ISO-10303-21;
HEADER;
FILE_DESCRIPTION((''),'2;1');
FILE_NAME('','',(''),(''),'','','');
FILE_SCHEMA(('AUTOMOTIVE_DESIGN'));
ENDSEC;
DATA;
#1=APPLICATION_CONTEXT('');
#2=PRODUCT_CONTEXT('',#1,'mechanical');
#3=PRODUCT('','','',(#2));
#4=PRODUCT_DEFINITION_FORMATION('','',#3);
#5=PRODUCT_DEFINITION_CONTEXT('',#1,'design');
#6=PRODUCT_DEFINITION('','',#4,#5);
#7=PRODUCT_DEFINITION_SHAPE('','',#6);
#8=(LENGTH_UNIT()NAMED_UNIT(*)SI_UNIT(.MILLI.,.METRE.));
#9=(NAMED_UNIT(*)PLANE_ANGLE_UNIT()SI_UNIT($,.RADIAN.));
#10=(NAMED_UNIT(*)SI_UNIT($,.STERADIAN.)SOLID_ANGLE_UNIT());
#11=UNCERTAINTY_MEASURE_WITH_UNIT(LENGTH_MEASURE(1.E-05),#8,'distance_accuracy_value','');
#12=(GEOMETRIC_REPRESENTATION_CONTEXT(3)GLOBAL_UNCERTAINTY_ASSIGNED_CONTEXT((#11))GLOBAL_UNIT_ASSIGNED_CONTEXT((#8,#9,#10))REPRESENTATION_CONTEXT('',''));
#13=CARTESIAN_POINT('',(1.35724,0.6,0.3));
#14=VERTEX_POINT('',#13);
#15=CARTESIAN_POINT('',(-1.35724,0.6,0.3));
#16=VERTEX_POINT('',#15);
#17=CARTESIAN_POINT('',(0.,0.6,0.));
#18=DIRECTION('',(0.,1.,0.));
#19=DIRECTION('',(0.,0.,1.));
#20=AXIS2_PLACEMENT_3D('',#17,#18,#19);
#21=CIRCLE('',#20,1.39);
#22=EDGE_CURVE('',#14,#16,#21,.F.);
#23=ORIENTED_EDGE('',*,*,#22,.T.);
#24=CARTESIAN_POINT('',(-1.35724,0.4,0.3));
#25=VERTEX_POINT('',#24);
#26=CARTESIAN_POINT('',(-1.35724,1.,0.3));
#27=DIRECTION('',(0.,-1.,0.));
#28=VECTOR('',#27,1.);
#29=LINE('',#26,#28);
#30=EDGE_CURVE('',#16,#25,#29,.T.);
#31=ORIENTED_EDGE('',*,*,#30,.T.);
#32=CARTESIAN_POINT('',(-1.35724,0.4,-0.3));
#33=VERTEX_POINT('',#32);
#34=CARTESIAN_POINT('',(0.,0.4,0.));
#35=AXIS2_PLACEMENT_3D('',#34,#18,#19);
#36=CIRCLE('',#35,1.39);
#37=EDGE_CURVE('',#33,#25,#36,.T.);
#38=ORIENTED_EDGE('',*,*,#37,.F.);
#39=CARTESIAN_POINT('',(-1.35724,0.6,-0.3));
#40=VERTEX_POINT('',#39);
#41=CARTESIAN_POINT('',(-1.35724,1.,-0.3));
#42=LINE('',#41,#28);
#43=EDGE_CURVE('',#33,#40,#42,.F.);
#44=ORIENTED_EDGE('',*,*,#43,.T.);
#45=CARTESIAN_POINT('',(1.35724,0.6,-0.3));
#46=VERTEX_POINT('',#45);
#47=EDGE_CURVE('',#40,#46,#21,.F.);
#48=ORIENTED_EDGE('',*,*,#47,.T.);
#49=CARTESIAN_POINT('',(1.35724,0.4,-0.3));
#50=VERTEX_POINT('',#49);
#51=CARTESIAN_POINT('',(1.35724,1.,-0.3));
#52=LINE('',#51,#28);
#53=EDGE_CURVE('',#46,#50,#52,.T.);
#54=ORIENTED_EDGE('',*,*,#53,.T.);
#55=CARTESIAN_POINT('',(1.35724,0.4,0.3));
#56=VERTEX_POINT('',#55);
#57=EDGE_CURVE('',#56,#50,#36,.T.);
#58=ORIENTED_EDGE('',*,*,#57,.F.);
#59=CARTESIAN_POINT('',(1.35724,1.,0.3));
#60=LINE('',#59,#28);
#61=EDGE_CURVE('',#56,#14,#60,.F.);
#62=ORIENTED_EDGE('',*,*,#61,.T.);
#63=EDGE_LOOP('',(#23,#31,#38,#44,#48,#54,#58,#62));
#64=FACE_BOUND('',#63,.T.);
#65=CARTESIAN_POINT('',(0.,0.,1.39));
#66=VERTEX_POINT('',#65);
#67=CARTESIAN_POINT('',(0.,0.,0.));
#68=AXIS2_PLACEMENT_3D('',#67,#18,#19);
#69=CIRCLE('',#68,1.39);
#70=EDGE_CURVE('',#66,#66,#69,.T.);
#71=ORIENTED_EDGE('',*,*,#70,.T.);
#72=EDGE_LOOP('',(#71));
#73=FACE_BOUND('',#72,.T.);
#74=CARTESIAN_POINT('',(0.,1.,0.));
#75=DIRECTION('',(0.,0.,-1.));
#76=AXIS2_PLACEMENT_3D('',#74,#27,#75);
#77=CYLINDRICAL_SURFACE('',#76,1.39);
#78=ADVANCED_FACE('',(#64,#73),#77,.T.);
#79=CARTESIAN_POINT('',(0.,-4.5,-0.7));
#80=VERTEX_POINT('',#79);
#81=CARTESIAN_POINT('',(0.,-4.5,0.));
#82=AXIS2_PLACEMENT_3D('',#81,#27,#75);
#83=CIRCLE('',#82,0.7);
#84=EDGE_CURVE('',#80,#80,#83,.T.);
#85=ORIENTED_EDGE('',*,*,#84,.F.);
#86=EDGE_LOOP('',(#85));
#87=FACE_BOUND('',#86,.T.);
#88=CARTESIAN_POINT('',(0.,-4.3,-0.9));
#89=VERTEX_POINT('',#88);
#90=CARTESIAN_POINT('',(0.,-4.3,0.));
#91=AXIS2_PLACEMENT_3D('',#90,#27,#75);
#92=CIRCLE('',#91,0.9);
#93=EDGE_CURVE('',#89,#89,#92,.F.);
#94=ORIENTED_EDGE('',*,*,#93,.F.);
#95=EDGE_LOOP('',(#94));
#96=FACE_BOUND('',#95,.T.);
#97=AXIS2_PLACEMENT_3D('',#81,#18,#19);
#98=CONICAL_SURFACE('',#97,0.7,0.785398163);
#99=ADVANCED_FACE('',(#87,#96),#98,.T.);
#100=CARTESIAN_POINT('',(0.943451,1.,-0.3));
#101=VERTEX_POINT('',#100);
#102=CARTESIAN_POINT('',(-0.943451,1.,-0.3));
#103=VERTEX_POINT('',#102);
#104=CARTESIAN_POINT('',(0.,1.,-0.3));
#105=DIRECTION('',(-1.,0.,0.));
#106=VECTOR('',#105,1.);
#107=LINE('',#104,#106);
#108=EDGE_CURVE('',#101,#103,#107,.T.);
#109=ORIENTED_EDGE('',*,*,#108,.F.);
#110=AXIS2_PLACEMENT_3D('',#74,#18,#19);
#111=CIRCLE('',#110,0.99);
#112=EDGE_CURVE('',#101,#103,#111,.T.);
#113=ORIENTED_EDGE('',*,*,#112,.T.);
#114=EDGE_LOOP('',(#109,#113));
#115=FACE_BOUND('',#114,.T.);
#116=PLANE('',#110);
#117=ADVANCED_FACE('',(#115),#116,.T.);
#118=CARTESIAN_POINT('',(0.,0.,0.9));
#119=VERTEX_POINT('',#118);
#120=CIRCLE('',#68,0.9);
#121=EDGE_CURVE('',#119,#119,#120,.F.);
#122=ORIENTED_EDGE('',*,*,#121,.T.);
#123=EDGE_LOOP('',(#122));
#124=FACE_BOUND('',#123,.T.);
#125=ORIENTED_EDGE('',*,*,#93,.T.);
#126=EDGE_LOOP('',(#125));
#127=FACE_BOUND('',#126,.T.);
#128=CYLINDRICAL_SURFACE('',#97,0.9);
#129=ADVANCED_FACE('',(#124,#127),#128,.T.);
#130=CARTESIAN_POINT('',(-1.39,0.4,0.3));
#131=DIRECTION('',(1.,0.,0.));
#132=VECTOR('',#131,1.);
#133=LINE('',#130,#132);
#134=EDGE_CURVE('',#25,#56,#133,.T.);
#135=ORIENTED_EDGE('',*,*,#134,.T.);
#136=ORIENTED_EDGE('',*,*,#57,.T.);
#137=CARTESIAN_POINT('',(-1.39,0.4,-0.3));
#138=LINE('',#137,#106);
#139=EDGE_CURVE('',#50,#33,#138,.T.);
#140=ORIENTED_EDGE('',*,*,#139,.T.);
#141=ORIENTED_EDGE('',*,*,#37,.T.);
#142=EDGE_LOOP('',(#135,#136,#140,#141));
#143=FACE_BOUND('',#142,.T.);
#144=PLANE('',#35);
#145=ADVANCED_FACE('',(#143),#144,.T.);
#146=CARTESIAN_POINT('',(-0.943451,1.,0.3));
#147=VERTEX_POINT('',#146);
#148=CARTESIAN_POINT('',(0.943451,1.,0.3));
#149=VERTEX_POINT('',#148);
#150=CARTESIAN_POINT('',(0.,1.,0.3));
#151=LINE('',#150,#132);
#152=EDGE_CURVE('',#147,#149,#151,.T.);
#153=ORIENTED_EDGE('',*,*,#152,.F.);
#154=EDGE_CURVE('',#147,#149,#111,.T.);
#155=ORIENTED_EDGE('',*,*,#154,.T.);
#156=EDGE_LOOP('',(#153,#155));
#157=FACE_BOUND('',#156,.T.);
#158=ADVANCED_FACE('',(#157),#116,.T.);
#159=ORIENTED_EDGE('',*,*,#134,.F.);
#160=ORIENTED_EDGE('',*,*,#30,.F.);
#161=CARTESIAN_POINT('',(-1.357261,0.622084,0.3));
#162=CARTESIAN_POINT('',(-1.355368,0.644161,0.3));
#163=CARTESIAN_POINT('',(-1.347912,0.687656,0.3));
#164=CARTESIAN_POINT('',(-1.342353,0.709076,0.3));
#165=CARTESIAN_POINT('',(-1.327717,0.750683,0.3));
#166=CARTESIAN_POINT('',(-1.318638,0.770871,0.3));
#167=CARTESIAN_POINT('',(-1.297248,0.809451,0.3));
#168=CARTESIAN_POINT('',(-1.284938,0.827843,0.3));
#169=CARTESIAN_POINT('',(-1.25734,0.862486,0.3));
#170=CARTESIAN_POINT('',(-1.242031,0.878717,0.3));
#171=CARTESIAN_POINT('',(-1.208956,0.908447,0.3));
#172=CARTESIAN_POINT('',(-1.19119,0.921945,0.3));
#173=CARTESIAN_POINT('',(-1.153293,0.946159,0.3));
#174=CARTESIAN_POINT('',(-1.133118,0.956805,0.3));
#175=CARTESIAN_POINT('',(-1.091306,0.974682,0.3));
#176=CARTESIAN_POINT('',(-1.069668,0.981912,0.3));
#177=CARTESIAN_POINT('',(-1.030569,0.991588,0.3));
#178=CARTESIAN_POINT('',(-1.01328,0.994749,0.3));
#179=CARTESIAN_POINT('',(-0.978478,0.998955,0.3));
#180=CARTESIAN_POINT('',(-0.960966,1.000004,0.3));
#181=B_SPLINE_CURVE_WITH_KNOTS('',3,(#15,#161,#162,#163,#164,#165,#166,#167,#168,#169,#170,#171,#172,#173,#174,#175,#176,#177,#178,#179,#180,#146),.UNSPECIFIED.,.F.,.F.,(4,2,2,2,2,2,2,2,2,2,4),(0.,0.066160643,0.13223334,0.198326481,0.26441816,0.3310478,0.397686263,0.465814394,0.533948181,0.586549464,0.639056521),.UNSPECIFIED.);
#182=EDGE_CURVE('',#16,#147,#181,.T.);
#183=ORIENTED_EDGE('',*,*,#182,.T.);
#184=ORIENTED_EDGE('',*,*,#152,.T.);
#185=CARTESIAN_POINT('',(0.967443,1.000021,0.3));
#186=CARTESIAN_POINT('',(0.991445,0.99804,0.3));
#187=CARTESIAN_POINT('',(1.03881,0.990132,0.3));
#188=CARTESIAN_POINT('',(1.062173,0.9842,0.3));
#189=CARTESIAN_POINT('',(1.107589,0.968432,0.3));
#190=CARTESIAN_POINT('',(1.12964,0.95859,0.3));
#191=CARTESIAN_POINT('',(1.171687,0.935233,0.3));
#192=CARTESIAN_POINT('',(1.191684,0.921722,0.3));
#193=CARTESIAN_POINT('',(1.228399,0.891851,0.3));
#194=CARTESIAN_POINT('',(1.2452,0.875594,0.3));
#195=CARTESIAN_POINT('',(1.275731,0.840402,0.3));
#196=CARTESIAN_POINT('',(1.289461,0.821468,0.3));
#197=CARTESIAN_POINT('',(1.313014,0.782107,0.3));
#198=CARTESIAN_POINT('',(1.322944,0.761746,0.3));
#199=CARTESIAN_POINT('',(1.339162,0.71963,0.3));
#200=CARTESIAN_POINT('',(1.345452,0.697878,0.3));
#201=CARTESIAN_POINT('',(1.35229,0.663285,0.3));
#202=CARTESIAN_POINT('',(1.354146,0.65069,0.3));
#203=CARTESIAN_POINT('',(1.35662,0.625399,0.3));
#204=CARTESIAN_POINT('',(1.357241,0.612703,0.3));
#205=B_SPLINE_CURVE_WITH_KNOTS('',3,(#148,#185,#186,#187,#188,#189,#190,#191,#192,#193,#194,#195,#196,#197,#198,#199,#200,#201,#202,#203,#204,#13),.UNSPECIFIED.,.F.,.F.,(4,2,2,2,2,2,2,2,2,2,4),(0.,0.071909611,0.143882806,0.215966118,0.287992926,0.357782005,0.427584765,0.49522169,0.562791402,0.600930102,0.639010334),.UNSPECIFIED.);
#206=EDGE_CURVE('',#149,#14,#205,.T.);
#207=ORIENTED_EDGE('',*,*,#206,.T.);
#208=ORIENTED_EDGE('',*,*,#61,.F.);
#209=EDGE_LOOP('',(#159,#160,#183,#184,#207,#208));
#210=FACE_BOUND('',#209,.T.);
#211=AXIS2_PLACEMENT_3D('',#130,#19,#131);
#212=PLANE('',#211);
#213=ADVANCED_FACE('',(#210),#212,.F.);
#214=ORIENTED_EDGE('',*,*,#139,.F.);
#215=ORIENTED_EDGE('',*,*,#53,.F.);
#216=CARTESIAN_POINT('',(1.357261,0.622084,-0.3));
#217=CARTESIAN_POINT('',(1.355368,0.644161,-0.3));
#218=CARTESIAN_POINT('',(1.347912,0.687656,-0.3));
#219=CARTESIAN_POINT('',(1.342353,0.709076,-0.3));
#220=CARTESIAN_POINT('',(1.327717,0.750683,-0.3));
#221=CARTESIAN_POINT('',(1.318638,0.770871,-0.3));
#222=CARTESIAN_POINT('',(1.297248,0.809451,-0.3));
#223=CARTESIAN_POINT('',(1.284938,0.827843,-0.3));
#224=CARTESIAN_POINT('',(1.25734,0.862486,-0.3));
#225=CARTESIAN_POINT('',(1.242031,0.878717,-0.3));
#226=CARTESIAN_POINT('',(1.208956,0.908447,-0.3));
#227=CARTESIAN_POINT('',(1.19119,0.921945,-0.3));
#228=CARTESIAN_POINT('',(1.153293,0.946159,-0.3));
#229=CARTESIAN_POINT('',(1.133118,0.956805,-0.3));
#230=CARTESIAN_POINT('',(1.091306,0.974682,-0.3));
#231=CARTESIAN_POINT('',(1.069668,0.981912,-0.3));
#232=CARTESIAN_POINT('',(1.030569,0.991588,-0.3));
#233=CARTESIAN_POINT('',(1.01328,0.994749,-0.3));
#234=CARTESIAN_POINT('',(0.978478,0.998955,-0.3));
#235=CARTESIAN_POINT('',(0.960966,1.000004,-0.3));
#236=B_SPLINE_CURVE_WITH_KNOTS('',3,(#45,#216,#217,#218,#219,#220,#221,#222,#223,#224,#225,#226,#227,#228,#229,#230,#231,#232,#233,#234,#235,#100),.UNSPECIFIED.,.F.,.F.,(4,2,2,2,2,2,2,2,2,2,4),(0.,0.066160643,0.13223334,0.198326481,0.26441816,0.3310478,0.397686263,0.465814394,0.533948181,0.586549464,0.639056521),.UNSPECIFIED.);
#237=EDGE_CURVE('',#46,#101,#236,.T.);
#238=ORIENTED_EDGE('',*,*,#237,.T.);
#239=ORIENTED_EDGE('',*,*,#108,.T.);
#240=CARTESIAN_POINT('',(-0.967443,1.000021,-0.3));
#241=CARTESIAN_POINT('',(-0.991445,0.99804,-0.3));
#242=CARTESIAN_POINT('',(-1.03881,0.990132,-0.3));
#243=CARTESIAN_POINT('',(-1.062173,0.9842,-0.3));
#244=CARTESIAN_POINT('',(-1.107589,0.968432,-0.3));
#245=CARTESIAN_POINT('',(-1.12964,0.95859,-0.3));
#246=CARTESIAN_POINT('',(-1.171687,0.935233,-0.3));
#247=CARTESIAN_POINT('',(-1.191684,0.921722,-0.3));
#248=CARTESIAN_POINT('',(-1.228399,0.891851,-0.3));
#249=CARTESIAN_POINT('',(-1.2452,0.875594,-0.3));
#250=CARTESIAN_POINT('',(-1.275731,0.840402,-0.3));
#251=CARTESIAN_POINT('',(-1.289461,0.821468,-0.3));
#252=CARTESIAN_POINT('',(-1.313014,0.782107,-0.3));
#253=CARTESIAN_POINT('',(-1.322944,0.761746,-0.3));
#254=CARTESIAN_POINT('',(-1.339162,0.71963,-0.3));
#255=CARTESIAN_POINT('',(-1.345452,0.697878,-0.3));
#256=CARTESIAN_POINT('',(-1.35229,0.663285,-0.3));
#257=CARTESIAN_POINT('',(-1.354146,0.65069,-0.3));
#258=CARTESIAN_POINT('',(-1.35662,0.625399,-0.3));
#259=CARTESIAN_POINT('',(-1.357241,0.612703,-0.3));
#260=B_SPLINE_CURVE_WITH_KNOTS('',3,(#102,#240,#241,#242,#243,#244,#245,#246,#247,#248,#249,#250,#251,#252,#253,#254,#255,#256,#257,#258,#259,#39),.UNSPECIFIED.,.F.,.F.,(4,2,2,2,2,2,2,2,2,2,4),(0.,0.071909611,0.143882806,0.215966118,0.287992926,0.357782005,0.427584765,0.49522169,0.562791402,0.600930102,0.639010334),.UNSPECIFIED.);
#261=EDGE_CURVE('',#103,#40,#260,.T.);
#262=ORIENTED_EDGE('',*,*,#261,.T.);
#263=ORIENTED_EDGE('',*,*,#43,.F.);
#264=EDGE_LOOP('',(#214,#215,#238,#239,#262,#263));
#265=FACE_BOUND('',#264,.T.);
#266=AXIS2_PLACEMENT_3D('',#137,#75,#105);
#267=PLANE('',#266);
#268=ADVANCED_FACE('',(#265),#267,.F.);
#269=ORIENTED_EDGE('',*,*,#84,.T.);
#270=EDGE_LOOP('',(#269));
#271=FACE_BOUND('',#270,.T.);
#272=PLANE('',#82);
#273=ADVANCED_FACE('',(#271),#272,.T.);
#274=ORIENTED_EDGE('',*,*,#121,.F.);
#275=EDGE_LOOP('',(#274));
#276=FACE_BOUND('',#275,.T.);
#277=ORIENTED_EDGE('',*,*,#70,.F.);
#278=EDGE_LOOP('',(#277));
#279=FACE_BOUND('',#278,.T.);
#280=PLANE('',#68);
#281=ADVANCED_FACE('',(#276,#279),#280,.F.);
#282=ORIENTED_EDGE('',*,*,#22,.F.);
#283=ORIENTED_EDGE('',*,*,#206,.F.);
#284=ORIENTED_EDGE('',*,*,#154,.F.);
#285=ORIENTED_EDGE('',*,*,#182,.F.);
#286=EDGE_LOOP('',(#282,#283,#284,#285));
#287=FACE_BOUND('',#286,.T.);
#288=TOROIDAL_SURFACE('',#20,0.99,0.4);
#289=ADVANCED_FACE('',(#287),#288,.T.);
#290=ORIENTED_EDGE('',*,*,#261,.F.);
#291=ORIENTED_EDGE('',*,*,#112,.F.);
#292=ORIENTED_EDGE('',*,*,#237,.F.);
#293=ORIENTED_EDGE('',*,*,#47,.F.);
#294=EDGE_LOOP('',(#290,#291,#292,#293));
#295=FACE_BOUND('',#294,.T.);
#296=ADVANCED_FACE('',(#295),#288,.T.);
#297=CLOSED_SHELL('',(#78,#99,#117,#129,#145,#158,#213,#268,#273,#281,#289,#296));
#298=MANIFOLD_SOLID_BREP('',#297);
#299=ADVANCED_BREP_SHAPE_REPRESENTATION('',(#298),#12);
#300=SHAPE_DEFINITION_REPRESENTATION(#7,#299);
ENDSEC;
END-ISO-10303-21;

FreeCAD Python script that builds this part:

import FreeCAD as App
import Part
import Sketcher

V = App.Vector


def edges_at(feature, points):
    """Names of the edges that pass closest to the given points."""
    edges = feature.Shape.Edges
    near = lambda p: min(range(len(edges)), key=lambda i: edges[i].distToShape(Part.Vertex(*p))[0])
    return sorted({f"Edge{near(p) + 1}" for p in points})


def add_polygon(sketch, points):
    """Adds a closed chain of lines whose ends are joined by coincident constraints."""
    first, n = sketch.GeometryCount, len(points)
    for a, b in zip(points, points[1:] + points[:1]):
        sketch.addGeometry(Part.LineSegment(App.Vector(*a, 0), App.Vector(*b, 0)), False)
    for i in range(n):
        sketch.addConstraint(Sketcher.Constraint("Coincident", first + i, 2, first + (i + 1) % n, 1))

doc = App.newDocument("Part")
body = doc.addObject("PartDesign::Body", "Body")

# Sketch on XZ plane
sketch1 = doc.addObject("Sketcher::SketchObject", "Sketch")
body.addObject(sketch1)
sketch1.AttachmentSupport = (doc.XZ_Plane, [""])
sketch1.MapMode = "FlatFace"
sketch1.addGeometry(Part.Circle(V(0, 0, 0), V(0, 0, 1), 1.39), False)
sketch1.addConstraint([
    Sketcher.Constraint("Coincident", 0, 3, -1, 1),
    Sketcher.Constraint("Diameter", 0, 2.78),
])
pad1 = doc.addObject("PartDesign::Pad", "Pad")
body.addObject(pad1)
pad1.Profile = sketch1
pad1.Length = 1
pad1.Reversed = True

# Sketch on XZ plane
sketch2 = doc.addObject("Sketcher::SketchObject", "Sketch001")
body.addObject(sketch2)
sketch2.AttachmentSupport = (doc.XZ_Plane, [""])
sketch2.MapMode = "FlatFace"
sketch2.AttachmentOffset = App.Placement(V(0, 0, -1), App.Rotation())
add_polygon(sketch2, [(-1.39, -0.3), (-1.39, 0.3), (1.39, 0.3), (1.39, -0.3)])  # lines 0-3
sketch2.addConstraint([
    Sketcher.Constraint("Vertical", 0),
    Sketcher.Constraint("Horizontal", 1),
    Sketcher.Constraint("Vertical", 2),
    Sketcher.Constraint("Horizontal", 3),
    Sketcher.Constraint("Symmetric", 0, 2, 2, 2, -1, 1),
    Sketcher.Constraint("DistanceY", 0, 1, 0, 2, 0.6),
    Sketcher.Constraint("DistanceX", 1, 1, 1, 2, 2.78),
])
pocket1 = doc.addObject("PartDesign::Pocket", "Pocket")
body.addObject(pocket1)
pocket1.Profile = sketch2
pocket1.Length = 0.6
pocket1.Reversed = True
doc.recompute()

fillet = doc.addObject("PartDesign::Fillet", "Fillet")
body.addObject(fillet)
fillet.Base = (pocket1, edges_at(pocket1, [(0, 1, -1.39), (0.87, 1, 1.084)]))
fillet.Radius = 0.4

# Sketch on XZ plane
sketch3 = doc.addObject("Sketcher::SketchObject", "Sketch002")
body.addObject(sketch3)
sketch3.AttachmentSupport = (doc.XZ_Plane, [""])
sketch3.MapMode = "FlatFace"
sketch3.addGeometry(Part.Circle(V(0, 0, 0), V(0, 0, 1), 0.9), False)
sketch3.addConstraint([
    Sketcher.Constraint("Coincident", 0, 3, -1, 1),
    Sketcher.Constraint("Diameter", 0, 1.8),
])
pad2 = doc.addObject("PartDesign::Pad", "Pad001")
body.addObject(pad2)
pad2.Profile = sketch3
pad2.Length = 4.5
doc.recompute()

chamfer = doc.addObject("PartDesign::Chamfer", "Chamfer")
body.addObject(chamfer)
chamfer.Base = (pad2, edges_at(pad2, [(0, -4.5, -0.9)]))
chamfer.Size = 0.2

doc.recompute()
